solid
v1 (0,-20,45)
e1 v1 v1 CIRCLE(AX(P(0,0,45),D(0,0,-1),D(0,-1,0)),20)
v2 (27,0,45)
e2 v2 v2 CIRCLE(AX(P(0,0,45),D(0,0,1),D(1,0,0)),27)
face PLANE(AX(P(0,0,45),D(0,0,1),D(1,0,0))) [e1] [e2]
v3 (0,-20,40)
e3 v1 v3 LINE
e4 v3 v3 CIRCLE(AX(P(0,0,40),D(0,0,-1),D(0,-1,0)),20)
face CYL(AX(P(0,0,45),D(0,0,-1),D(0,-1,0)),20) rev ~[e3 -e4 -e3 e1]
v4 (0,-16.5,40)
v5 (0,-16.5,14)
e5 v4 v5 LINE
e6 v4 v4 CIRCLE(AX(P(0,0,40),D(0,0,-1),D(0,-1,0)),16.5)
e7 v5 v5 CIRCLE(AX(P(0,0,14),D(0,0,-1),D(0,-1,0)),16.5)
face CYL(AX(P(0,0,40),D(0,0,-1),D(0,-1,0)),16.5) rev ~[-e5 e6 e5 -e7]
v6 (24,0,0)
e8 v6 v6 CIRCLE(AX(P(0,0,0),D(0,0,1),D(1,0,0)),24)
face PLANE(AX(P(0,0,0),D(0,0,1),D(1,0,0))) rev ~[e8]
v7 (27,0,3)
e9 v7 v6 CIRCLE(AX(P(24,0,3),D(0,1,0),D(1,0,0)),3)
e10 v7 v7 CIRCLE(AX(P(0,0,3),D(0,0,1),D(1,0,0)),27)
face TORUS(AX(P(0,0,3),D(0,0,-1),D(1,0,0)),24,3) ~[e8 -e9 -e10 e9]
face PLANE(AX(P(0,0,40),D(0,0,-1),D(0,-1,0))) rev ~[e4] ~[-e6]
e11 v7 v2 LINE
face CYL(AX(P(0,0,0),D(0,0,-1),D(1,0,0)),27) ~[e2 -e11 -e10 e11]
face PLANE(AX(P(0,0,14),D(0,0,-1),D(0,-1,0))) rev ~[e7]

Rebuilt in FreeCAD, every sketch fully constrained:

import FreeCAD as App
import Part
import Sketcher
from FreeCAD import Vector


def edges_at(feature, points):
    """Names of the edges that pass closest to the given points."""
    edges = feature.Shape.Edges
    near = lambda p: min(range(len(edges)), key=lambda i: edges[i].distToShape(Part.Vertex(*p))[0])
    return sorted({f"Edge{near(p) + 1}" for p in points})

doc = App.newDocument("Part")
body = doc.addObject("PartDesign::Body", "Body")

# Sketch on XY plane
sketch1 = doc.addObject("Sketcher::SketchObject", "Sketch")
body.addObject(sketch1)
sketch1.AttachmentSupport = (doc.XY_Plane, [""])
sketch1.MapMode = "FlatFace"
sketch1.addGeometry(Part.Circle(Vector(0, 0, 0), Vector(0, 0, 1), 27), False)
sketch1.addConstraint(Sketcher.Constraint("Coincident", 0, 3, -1, 1))
sketch1.addConstraint(Sketcher.Constraint("Diameter", 0, 54.0))
pad1 = doc.addObject("PartDesign::Pad", "Pad")
body.addObject(pad1)
pad1.Profile = sketch1
pad1.Length = 45

# Sketch on XY plane
sketch2 = doc.addObject("Sketcher::SketchObject", "Sketch001")
body.addObject(sketch2)
sketch2.AttachmentSupport = (doc.XY_Plane, [""])
sketch2.MapMode = "FlatFace"
sketch2.AttachmentOffset = App.Placement(Vector(0, 0, 45), App.Rotation())
sketch2.addGeometry(Part.Circle(Vector(0, 0, 0), Vector(0, 0, 1), 20), False)
sketch2.addConstraint(Sketcher.Constraint("Coincident", 0, 3, -1, 1))
sketch2.addConstraint(Sketcher.Constraint("Diameter", 0, 40.0))
doc.recompute()
hole = doc.addObject("PartDesign::Hole", "Hole")
body.addObject(hole)
hole.Profile = sketch2
hole.ThreadType = "None"
hole.Diameter = 40
hole.DepthType = "Dimension"
hole.Depth = 5
hole.DrillPoint = "Flat"

# Sketch on XY plane
sketch3 = doc.addObject("Sketcher::SketchObject", "Sketch002")
body.addObject(sketch3)
sketch3.AttachmentSupport = (doc.XY_Plane, [""])
sketch3.MapMode = "FlatFace"
sketch3.AttachmentOffset = App.Placement(Vector(0, 0, 40), App.Rotation())
sketch3.addGeometry(Part.Circle(Vector(0, 0, 0), Vector(0, 0, 1), 16), False)
sketch3.addConstraint(Sketcher.Constraint("Coincident", 0, 3, -1, 1))
sketch3.addConstraint(Sketcher.Constraint("Diameter", 0, 33.0))
doc.recompute()
hole2 = doc.addObject("PartDesign::Hole", "Hole001")
body.addObject(hole2)
hole2.Profile = sketch3
hole2.ThreadType = "None"
hole2.Diameter = 33
hole2.DepthType = "Dimension"
hole2.Depth = 26
hole2.DrillPoint = "Flat"
doc.recompute()

fillet = doc.addObject("PartDesign::Fillet", "Fillet")
body.addObject(fillet)
fillet.Base = (hole2, edges_at(hole2, [(-27, 0, 0)]))
fillet.Radius = 3

doc.recompute()
